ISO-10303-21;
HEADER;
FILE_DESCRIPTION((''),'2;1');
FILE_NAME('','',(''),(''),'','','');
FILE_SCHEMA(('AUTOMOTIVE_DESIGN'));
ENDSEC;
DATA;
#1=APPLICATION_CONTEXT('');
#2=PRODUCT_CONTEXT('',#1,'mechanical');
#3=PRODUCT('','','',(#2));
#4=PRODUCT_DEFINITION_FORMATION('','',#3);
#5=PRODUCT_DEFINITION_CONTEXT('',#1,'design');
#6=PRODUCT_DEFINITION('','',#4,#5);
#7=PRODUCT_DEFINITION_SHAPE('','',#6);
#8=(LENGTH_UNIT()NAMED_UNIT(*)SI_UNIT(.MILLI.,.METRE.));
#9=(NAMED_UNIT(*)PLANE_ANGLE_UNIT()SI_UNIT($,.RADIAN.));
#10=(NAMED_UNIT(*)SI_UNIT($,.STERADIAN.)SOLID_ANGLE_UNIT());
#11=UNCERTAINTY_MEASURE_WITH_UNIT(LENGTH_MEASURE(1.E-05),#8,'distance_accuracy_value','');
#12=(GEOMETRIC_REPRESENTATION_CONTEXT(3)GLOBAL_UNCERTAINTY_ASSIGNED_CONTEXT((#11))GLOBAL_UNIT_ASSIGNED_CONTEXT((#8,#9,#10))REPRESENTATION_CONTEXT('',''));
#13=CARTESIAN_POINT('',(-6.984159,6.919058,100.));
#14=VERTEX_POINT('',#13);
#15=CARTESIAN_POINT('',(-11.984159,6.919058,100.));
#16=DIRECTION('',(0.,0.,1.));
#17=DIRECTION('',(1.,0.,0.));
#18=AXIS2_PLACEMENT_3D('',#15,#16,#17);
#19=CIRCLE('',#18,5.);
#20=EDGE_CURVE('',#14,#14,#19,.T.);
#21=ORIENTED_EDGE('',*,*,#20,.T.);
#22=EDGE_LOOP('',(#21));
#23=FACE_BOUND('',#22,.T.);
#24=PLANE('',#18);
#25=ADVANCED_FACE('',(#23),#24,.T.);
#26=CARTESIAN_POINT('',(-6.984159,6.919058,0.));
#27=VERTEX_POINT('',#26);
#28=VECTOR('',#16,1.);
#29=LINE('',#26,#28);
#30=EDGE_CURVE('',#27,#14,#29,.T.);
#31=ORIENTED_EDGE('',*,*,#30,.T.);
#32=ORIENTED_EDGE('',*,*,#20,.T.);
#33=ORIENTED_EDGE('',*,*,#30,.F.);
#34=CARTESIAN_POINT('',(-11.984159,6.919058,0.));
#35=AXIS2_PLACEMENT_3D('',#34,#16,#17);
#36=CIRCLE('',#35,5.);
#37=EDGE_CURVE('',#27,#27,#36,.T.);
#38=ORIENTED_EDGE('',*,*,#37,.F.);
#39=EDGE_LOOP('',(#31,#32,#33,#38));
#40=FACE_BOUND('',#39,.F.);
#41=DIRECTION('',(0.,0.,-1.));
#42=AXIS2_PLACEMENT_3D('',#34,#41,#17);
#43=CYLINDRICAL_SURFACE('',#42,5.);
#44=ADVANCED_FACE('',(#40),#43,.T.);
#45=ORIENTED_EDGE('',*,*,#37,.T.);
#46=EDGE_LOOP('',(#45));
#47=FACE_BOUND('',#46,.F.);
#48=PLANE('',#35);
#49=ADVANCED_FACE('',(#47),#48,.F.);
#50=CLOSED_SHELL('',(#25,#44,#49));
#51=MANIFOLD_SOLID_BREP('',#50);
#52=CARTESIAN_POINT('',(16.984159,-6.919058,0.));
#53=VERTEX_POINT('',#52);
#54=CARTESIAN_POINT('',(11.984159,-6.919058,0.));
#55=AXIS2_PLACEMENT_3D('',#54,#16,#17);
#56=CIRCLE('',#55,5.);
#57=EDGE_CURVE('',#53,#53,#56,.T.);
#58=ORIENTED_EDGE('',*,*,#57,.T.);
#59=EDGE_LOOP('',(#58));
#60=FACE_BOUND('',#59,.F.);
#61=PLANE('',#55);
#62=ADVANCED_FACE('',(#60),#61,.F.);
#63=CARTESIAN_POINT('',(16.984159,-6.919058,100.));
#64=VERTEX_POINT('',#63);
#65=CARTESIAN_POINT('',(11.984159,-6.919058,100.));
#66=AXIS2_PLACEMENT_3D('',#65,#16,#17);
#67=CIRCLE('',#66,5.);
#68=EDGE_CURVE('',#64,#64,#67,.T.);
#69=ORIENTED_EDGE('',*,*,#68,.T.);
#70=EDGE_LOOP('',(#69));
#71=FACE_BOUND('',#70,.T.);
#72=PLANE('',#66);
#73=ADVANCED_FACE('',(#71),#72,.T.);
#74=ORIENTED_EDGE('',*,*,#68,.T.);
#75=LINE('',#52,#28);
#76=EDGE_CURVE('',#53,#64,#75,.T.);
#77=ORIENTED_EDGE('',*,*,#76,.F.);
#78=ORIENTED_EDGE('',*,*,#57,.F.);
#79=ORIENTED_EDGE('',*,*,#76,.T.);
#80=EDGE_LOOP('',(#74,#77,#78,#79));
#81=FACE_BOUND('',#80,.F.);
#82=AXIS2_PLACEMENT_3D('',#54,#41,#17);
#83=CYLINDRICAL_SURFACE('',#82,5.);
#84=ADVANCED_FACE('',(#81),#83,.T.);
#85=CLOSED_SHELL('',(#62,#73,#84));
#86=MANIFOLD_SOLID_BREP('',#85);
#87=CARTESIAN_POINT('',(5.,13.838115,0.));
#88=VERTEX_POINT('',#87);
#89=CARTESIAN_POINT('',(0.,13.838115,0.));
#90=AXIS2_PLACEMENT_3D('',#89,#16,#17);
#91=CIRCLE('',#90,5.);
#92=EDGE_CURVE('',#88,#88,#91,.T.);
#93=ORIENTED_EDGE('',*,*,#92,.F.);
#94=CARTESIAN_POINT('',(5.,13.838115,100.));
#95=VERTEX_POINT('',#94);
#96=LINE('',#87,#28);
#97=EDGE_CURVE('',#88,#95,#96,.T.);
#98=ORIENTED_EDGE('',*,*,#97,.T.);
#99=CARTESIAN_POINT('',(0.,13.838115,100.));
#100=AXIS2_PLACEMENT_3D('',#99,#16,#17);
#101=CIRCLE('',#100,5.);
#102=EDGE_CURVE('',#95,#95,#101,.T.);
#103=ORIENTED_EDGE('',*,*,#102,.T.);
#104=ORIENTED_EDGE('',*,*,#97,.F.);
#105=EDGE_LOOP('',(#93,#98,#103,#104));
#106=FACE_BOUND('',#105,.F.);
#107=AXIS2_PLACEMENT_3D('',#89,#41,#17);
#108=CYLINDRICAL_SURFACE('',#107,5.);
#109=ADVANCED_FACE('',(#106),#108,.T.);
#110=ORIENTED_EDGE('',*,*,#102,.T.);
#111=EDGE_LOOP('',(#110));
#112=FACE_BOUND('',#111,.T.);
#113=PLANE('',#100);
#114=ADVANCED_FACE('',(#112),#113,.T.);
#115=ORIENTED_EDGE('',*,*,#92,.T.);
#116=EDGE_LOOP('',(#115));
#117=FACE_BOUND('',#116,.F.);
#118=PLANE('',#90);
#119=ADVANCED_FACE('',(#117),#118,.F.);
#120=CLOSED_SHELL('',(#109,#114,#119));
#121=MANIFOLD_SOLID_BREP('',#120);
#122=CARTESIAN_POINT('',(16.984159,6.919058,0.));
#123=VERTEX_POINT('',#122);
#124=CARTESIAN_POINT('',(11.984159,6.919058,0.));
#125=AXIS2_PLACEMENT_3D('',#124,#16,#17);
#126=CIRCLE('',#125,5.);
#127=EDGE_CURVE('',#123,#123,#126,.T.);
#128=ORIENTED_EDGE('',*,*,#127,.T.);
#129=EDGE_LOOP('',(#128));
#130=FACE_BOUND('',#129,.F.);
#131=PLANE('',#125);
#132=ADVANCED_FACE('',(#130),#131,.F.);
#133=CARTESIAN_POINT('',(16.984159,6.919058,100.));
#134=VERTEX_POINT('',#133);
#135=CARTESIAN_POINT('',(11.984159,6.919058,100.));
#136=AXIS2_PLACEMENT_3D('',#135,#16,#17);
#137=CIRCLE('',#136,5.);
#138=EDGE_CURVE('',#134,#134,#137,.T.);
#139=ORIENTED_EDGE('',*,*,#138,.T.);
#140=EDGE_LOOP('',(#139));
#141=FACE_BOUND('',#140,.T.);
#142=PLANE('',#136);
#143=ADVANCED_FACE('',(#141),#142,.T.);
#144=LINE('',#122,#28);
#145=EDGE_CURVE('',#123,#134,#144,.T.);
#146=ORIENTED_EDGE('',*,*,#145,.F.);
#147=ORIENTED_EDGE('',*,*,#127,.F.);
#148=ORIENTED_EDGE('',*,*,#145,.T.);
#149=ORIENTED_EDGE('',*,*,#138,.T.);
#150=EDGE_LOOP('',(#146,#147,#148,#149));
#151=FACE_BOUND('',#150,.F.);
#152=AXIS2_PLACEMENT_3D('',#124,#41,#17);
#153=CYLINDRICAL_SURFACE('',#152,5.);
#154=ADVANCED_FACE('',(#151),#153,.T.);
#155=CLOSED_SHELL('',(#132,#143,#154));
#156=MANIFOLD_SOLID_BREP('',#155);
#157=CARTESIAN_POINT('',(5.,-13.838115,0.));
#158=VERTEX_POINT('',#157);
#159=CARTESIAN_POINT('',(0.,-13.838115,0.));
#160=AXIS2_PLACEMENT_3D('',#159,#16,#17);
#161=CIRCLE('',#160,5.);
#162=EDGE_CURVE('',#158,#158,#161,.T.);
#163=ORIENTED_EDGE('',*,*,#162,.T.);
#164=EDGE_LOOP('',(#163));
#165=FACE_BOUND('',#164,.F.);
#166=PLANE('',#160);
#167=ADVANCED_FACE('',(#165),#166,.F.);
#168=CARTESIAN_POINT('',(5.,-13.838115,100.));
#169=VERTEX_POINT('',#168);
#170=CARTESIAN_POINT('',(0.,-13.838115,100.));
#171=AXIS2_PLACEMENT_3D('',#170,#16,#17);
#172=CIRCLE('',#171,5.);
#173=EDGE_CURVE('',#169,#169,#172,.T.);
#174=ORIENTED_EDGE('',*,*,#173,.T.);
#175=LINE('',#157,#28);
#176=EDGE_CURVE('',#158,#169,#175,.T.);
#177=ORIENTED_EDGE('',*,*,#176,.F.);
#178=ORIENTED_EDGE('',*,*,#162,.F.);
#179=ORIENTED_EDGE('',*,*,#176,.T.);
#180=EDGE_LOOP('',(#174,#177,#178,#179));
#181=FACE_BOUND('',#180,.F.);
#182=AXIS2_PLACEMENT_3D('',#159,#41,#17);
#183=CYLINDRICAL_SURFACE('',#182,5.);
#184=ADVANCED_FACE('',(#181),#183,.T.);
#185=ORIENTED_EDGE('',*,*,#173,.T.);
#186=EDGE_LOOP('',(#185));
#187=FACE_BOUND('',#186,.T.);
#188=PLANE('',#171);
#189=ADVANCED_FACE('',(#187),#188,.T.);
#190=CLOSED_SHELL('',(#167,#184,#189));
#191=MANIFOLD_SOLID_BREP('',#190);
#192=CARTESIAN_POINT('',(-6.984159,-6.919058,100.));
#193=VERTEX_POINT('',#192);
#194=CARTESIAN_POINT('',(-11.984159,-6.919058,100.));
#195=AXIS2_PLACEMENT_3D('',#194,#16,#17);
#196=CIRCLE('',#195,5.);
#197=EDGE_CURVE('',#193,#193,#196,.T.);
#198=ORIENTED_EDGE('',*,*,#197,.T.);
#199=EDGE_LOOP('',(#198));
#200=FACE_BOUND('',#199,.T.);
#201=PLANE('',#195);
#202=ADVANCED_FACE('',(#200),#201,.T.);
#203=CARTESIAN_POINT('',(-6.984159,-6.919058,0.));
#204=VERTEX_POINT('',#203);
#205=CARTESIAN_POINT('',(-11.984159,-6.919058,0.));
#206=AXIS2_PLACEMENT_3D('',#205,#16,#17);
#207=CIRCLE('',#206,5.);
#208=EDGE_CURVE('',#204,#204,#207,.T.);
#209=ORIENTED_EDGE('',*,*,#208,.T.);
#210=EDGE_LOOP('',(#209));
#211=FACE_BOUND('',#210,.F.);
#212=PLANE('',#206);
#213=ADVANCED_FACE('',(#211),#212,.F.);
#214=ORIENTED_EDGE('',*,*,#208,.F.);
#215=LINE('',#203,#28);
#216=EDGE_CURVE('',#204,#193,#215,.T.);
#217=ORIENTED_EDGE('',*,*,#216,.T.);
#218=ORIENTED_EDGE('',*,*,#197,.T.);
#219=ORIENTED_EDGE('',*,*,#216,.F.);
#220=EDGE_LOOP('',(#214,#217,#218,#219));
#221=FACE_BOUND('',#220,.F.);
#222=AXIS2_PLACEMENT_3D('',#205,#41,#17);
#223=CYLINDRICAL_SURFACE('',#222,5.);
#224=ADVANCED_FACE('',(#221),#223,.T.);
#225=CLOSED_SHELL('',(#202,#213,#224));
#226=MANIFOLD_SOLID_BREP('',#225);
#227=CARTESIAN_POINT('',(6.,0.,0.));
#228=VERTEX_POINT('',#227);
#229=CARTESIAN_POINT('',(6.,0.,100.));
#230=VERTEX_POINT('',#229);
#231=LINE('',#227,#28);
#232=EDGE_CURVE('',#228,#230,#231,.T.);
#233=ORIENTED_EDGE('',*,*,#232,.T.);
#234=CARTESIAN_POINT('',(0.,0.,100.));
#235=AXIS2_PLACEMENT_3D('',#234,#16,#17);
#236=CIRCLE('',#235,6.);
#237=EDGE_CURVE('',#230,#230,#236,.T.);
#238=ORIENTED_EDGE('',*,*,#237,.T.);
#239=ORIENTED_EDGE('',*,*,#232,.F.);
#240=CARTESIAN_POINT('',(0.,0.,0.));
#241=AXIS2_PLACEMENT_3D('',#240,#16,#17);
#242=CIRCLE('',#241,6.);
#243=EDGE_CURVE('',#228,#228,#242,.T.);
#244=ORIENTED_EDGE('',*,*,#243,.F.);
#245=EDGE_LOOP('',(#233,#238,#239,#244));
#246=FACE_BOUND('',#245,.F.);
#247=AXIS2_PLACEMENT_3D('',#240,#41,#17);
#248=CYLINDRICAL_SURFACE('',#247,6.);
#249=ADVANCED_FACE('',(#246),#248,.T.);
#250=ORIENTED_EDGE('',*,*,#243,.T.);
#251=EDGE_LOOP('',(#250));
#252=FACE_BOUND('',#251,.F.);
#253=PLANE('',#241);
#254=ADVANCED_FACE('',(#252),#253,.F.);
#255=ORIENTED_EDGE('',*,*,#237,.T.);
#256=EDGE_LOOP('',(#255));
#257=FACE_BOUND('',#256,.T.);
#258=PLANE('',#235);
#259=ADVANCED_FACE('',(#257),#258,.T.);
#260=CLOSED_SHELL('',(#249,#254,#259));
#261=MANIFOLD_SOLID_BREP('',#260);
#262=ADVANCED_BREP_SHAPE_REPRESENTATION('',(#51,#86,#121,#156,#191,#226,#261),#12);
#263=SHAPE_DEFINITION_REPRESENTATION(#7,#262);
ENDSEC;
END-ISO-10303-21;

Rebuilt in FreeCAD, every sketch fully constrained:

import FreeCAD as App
import Part
import Sketcher

V = App.Vector
Q = App.Units.Quantity

doc = App.newDocument("Part")
body = doc.addObject("PartDesign::Body", "Body")
body.AllowCompound = True

# Sketch on XY plane
sketch1 = body.newObject("Sketcher::SketchObject", "Sketch")
sketch1.AttachmentSupport = (doc.getObject("XY_Plane"), [""])
sketch1.MapMode = "FlatFace"
sketch1.addGeometry(Part.Circle(V(0, 13.838115, 0), V(0, 0, 1), 5), False)
sketch1.addGeometry(Part.Circle(V(-11.984159, 6.919058, 0), V(0, 0, 1), 5), False)
sketch1.addGeometry(Part.Circle(V(11.984159, -6.919058, 0), V(0, 0, 1), 5), False)
sketch1.addGeometry(Part.Circle(V(11.984159, 6.919058, 0), V(0, 0, 1), 5), False)
sketch1.addGeometry(Part.Circle(V(-11.984159, -6.919058, 0), V(0, 0, 1), 5), False)
sketch1.addGeometry(Part.Circle(V(0, -13.838115, 0), V(0, 0, 1), 5), False)
sketch1.addGeometry(Part.Circle(V(0, 0, 0), V(0, 0, 1), 6), False)
sketch1.addConstraint(Sketcher.Constraint("Coincident", 6, 3, -1, 1))
sketch1.addConstraint(Sketcher.Constraint("Equal", 0, 1))
sketch1.addConstraint(Sketcher.Constraint("Equal", 1, 2))
sketch1.addConstraint(Sketcher.Constraint("Equal", 2, 3))
sketch1.addConstraint(Sketcher.Constraint("Equal", 3, 4))
sketch1.addConstraint(Sketcher.Constraint("Equal", 4, 5))
sketch1.addConstraint(Sketcher.Constraint("Symmetric", 1, 3, 2, 3, -1, 1))
sketch1.addConstraint(Sketcher.Constraint("Symmetric", 3, 3, 4, 3, -1, 1))
sketch1.addConstraint(Sketcher.Constraint("Symmetric", 0, 3, 5, 3, -1, 1))
sketch1.addConstraint(Sketcher.Constraint("Symmetric", 1, 3, 3, 3, -2))
sketch1.addConstraint(Sketcher.Constraint("PointOnObject", 0, 3, -2))
sketch1.addConstraint(Sketcher.Constraint("Diameter", 0, Q("10 mm")))
sketch1.addConstraint(Sketcher.Constraint("Diameter", 6, Q("12 mm")))
sketch1.addConstraint(Sketcher.Constraint("DistanceX", 1, 3, -1, 1, Q("11.984159 mm")))
sketch1.addConstraint(Sketcher.Constraint("DistanceY", 5, 3, 0, 3, Q("27.67623 mm")))
sketch1.addConstraint(Sketcher.Constraint("DistanceY", -1, 1, 1, 3, Q("6.919058 mm")))
pad1 = body.newObject("PartDesign::Pad", "Pad")
pad1.Profile = sketch1
pad1.Length = 100

doc.recompute()
